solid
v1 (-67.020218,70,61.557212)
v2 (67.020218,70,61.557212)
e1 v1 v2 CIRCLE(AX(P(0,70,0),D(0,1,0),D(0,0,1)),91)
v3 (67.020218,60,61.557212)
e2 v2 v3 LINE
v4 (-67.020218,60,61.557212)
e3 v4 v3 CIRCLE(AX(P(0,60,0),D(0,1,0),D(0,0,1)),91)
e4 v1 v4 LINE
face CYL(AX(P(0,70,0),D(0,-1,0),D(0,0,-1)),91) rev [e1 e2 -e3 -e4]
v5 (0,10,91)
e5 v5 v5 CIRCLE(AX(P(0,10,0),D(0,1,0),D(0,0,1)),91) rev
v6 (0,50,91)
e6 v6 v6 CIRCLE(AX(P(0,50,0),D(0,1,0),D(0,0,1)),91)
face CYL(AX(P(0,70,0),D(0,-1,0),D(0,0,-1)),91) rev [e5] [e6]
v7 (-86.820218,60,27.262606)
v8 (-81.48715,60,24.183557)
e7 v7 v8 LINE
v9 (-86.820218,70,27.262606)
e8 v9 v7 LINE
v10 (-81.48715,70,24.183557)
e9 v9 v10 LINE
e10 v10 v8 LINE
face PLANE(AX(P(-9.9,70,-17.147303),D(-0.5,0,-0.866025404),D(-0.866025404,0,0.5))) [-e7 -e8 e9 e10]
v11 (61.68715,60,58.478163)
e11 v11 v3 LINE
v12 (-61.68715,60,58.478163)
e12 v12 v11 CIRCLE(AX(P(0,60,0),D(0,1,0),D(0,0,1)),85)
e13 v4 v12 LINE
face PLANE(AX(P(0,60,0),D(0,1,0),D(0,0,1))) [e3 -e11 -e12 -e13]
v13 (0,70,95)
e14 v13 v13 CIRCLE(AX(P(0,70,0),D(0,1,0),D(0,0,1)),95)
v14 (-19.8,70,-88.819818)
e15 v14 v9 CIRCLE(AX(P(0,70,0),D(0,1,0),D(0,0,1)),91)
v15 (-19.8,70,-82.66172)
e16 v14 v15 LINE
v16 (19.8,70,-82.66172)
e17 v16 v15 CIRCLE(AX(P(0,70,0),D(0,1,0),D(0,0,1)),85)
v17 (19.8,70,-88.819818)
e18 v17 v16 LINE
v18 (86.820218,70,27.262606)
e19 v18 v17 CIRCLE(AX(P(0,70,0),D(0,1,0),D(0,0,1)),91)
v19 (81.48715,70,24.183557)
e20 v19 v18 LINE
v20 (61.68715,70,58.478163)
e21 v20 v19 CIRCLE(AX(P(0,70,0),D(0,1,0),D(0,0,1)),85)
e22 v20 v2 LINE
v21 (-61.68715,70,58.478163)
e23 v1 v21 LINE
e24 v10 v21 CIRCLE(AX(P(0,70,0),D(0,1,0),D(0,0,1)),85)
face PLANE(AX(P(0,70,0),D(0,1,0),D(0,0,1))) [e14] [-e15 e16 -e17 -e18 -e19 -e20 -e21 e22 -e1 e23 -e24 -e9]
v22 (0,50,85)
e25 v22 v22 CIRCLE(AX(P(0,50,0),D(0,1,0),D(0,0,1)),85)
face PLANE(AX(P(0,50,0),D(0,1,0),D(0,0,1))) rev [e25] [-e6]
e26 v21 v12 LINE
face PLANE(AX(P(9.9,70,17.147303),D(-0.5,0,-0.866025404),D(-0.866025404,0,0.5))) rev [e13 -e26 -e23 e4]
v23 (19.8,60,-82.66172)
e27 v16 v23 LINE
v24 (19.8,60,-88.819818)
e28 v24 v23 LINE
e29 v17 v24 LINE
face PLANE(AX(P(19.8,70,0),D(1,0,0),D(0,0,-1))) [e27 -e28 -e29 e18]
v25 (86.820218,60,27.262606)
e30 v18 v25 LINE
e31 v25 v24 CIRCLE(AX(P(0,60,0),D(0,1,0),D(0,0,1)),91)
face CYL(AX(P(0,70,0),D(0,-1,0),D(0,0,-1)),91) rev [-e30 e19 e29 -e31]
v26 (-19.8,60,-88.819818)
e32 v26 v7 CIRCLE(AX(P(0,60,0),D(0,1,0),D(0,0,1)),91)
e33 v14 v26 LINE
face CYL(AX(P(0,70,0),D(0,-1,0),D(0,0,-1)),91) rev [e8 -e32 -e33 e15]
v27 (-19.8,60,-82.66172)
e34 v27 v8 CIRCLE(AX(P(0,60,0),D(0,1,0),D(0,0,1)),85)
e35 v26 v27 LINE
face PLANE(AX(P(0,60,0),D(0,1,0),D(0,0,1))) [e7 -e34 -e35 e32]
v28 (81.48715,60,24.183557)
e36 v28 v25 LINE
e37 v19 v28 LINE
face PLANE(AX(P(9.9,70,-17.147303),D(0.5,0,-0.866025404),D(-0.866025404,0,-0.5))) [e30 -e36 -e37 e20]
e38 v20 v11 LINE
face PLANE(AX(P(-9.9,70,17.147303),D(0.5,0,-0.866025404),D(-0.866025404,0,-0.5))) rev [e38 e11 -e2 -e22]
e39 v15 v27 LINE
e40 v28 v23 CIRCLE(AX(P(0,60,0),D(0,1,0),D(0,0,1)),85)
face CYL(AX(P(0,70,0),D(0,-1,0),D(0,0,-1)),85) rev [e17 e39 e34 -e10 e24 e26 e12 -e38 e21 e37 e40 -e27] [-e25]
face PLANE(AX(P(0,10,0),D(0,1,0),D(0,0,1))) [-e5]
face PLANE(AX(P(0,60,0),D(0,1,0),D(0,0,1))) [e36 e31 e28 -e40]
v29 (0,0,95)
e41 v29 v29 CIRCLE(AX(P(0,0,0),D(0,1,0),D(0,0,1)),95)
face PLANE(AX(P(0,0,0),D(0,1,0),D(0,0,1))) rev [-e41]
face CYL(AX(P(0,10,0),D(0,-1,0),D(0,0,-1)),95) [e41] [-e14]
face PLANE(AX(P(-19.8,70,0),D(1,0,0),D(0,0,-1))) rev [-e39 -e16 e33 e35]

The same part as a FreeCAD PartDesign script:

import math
import FreeCAD as App
import Part
import Sketcher
from FreeCAD import Vector
Q = App.Units.Quantity

doc = App.newDocument("Part")
body = doc.addObject("PartDesign::Body", "Body")

# Sketch on XZ plane
sketch1 = body.newObject("Sketcher::SketchObject", "Sketch")
sketch1.AttachmentSupport = (doc.getObject("XZ_Plane"), [""])
sketch1.MapMode = "FlatFace"
sketch1.addGeometry(Part.Circle(Vector(0, 0, 0), Vector(0, 0, 1), 95), False)
sketch1.addConstraint([
    Sketcher.Constraint("Coincident", 0, 3, -1, 1),
    Sketcher.Constraint("Diameter", 0, Q("190 mm")),
])
pad1 = body.newObject("PartDesign::Pad", "Pad")
pad1.Profile = sketch1
pad1.Length = 10
pad1.Reversed = True

# Sketch on XZ plane
sketch2 = body.newObject("Sketcher::SketchObject", "Sketch001")
sketch2.AttachmentSupport = (doc.getObject("XZ_Plane"), [""])
sketch2.MapMode = "FlatFace"
sketch2.AttachmentOffset = App.Placement(Vector(0, 0, -10), App.Rotation())
sketch2.addGeometry([
    Part.Circle(Vector(0, 0, 0), Vector(0, 0, 1), 95),
    Part.Circle(Vector(0, 0, 0), Vector(0, 0, 1), 91),
], False)
sketch2.addConstraint([
    Sketcher.Constraint("Coincident", 0, 3, -1, 1),
    Sketcher.Constraint("Coincident", 1, 3, -1, 1),
    Sketcher.Constraint("Diameter", 0, Q("190 mm")),
    Sketcher.Constraint("Diameter", 1, Q("182 mm")),
])
pad2 = body.newObject("PartDesign::Pad", "Pad001")
pad2.Profile = sketch2
pad2.Length = 60
pad2.Reversed = True

# Sketch on XZ plane
sketch3 = body.newObject("Sketcher::SketchObject", "Sketch002")
sketch3.AttachmentSupport = (doc.getObject("XZ_Plane"), [""])
sketch3.MapMode = "FlatFace"
sketch3.AttachmentOffset = App.Placement(Vector(0, 0, -60), App.Rotation())
sketch3.addGeometry([
    Part.LineSegment(Vector(-81.48715, 24.183557, 0), Vector(-86.820218, 27.262606, 0)),  # 0
    Part.ArcOfCircle(Part.Circle(Vector(0, 0, 0), Vector(0, 0, 1), 91), math.radians(137.432924), math.radians(162.567076)),  # 1
    Part.LineSegment(Vector(-67.020218, 61.557212, 0), Vector(-61.68715, 58.478163, 0)),  # 2
    Part.ArcOfCircle(Part.Circle(Vector(0, 0, 0), Vector(0, 0, 1), 85), math.radians(136.529707), math.radians(163.470293)),  # 3
    Part.LineSegment(Vector(61.68715, 58.478163, 0), Vector(67.020218, 61.557212, 0)),  # 4
    Part.ArcOfCircle(Part.Circle(Vector(0, 0, 0), Vector(0, 0, 1), 91), math.radians(17.432924), math.radians(42.567076)),  # 5
    Part.LineSegment(Vector(86.820218, 27.262606, 0), Vector(81.48715, 24.183557, 0)),  # 6
    Part.ArcOfCircle(Part.Circle(Vector(0, 0, 0), Vector(0, 0, 1), 85), math.radians(16.529707), math.radians(43.470293)),  # 7
    Part.ArcOfCircle(Part.Circle(Vector(0, 0, 0), Vector(0, 0, 1), 91), math.radians(-102.567076), math.radians(-77.432924)),  # 8
    Part.LineSegment(Vector(-19.8, -88.819818, 0), Vector(-19.8, -82.66172, 0)),  # 9
    Part.ArcOfCircle(Part.Circle(Vector(0, 0, 0), Vector(0, 0, 1), 85), math.radians(-103.470293), math.radians(-76.529707)),  # 10
    Part.LineSegment(Vector(19.8, -82.66172, 0), Vector(19.8, -88.819818, 0)),  # 11
], False)
sketch3.addConstraint([
    Sketcher.Constraint("Coincident", 0, 2, 1, 2),
    Sketcher.Constraint("Coincident", 1, 1, 2, 1),
    Sketcher.Constraint("Coincident", 2, 2, 3, 1),
    Sketcher.Constraint("Coincident", 3, 2, 0, 1),
    Sketcher.Constraint("Coincident", 4, 2, 5, 2),
    Sketcher.Constraint("Coincident", 5, 1, 6, 1),
    Sketcher.Constraint("Coincident", 6, 2, 7, 1),
    Sketcher.Constraint("Coincident", 7, 2, 4, 1),
    Sketcher.Constraint("Coincident", 8, 1, 9, 1),
    Sketcher.Constraint("Coincident", 9, 2, 10, 1),
    Sketcher.Constraint("Coincident", 10, 2, 11, 1),
    Sketcher.Constraint("Coincident", 11, 2, 8, 2),
    Sketcher.Constraint("Vertical", 9),
    Sketcher.Constraint("Vertical", 11),
    Sketcher.Constraint("Coincident", 1, 3, -1, 1),
    Sketcher.Constraint("Coincident", 3, 3, -1, 1),
    Sketcher.Constraint("Coincident", 5, 3, -1, 1),
    Sketcher.Constraint("Coincident", 7, 3, -1, 1),
    Sketcher.Constraint("Coincident", 8, 3, -1, 1),
    Sketcher.Constraint("Coincident", 10, 3, -1, 1),
    Sketcher.Constraint("Equal", 1, 5),
    Sketcher.Constraint("Equal", 3, 7),
    Sketcher.Constraint("Equal", 5, 8),
    Sketcher.Constraint("Equal", 7, 10),
    Sketcher.Constraint("Parallel", 0, 2),
    Sketcher.Constraint("Parallel", 4, 6),
    Sketcher.Constraint("Horizontal", 1, 1, 4, 2),
    Sketcher.Constraint("Horizontal", 0, 2, 5, 1),
    Sketcher.Constraint("Horizontal", 3, 2, 6, 2),
    Sketcher.Constraint("Horizontal", 9, 2, 10, 2),
    Sketcher.Constraint("Equal", 0, 2),
    Sketcher.Constraint("Radius", 1, Q("91 mm")),
    Sketcher.Constraint("Radius", 3, Q("85 mm")),
    Sketcher.Constraint("Angle", 0, Q("150 deg")),
    Sketcher.Constraint("DistanceX", 8, 1, -1, 1, Q("19.8 mm")),
    Sketcher.Constraint("DistanceX", 0, 2, 1, 1, Q("19.8 mm")),
])
pad3 = body.newObject("PartDesign::Pad", "Pad002")
pad3.Profile = sketch3
pad3.Length = 10
pad3.Reversed = True

# Sketch on XZ plane
sketch4 = body.newObject("Sketcher::SketchObject", "Sketch003")
sketch4.AttachmentSupport = (doc.getObject("XZ_Plane"), [""])
sketch4.MapMode = "FlatFace"
sketch4.AttachmentOffset = App.Placement(Vector(0, 0, -50), App.Rotation())
sketch4.addGeometry([
    Part.Circle(Vector(0, 0, 0), Vector(0, 0, 1), 91),
    Part.Circle(Vector(0, 0, 0), Vector(0, 0, 1), 85),
], False)
sketch4.addConstraint([
    Sketcher.Constraint("Coincident", 0, 3, -1, 1),
    Sketcher.Constraint("Coincident", 1, 3, -1, 1),
    Sketcher.Constraint("Diameter", 0, Q("182 mm")),
    Sketcher.Constraint("Diameter", 1, Q("170 mm")),
])
pad4 = body.newObject("PartDesign::Pad", "Pad003")
pad4.Profile = sketch4
pad4.Length = 10
pad4.Reversed = True

doc.recompute()
